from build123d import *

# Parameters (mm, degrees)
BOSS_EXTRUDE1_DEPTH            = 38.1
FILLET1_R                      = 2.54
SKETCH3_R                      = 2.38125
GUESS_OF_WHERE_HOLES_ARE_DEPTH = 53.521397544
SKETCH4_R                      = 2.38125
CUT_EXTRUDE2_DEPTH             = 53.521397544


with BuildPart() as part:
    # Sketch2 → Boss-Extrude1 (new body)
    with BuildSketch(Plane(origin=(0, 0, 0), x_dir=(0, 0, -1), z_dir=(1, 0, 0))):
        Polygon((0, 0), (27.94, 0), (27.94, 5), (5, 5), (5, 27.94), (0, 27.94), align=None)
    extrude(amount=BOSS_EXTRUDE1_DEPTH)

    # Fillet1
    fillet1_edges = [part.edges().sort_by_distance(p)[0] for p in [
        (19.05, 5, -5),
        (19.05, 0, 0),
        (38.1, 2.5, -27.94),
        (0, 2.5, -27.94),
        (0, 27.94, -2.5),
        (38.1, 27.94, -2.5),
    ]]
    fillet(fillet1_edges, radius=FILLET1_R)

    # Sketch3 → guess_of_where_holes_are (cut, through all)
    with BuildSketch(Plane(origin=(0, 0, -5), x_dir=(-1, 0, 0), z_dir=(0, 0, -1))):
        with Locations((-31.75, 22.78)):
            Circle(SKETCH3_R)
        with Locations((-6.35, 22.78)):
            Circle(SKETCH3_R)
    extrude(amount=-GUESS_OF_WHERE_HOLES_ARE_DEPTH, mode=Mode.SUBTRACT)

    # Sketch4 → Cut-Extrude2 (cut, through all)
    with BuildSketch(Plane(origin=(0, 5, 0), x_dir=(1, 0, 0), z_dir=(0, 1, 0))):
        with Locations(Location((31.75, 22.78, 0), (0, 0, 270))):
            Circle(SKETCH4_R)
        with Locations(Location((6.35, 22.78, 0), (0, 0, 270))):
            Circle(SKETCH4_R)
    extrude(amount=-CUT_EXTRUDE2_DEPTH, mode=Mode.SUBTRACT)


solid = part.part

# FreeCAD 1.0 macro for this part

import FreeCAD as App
import Part
import Sketcher
from FreeCAD import Vector
Q = App.Units.Quantity


def edges_at(feature, points):
    """Names of the edges that pass closest to the given points."""
    edges = feature.Shape.Edges
    near = lambda p: min(range(len(edges)), key=lambda i: edges[i].distToShape(Part.Vertex(*p))[0])
    return sorted({f"Edge{near(p) + 1}" for p in points})

doc = App.newDocument("Part")
body = doc.addObject("PartDesign::Body", "Body")

# Sketch on YZ plane
sketch1 = body.newObject("Sketcher::SketchObject", "Sketch")
sketch1.AttachmentSupport = (doc.getObject("YZ_Plane"), [""])
sketch1.MapMode = "FlatFace"
sketch1.addGeometry([
    Part.LineSegment(Vector(0, 0, 0), Vector(0, -27.94, 0)),  # 0
    Part.LineSegment(Vector(0, -27.94, 0), Vector(5, -27.94, 0)),  # 1
    Part.LineSegment(Vector(5, -27.94, 0), Vector(5, -5, 0)),  # 2
    Part.LineSegment(Vector(5, -5, 0), Vector(27.94, -5, 0)),  # 3
    Part.LineSegment(Vector(27.94, -5, 0), Vector(27.94, 0, 0)),  # 4
    Part.LineSegment(Vector(27.94, 0, 0), Vector(0, 0, 0)),  # 5
], False)
sketch1.addConstraint([
    Sketcher.Constraint("Coincident", 0, 2, 1, 1),
    Sketcher.Constraint("Coincident", 1, 2, 2, 1),
    Sketcher.Constraint("Coincident", 2, 2, 3, 1),
    Sketcher.Constraint("Coincident", 3, 2, 4, 1),
    Sketcher.Constraint("Coincident", 4, 2, 5, 1),
    Sketcher.Constraint("Coincident", 5, 2, 0, 1),
    Sketcher.Constraint("Vertical", 0),
    Sketcher.Constraint("Horizontal", 1),
    Sketcher.Constraint("Vertical", 2),
    Sketcher.Constraint("Horizontal", 3),
    Sketcher.Constraint("Vertical", 4),
    Sketcher.Constraint("Horizontal", 5),
    Sketcher.Constraint("Coincident", 5, 2, -1, 1),
    Sketcher.Constraint("Equal", 5, 0),
    Sketcher.Constraint("Equal", 3, 2),
    Sketcher.Constraint("DistanceX", 5, 2, 5, 1, Q("1.1 in")),
    Sketcher.Constraint("DistanceX", 1, 1, 1, 2, 5.0),
])
pad1 = body.newObject("PartDesign::Pad", "Pad")
pad1.Profile = sketch1
pad1.Length = Q("1.5 in")
doc.recompute()

fillet = body.newObject("PartDesign::Fillet", "Fillet")
fillet.Base = (pad1, edges_at(pad1, [
    (19.05, 5, -5),
    (19.05, 0, 0),
    (38.1, 2.5, -27.94),
    (0, 2.5, -27.94),
    (0, 27.94, -2.5),
    (38.1, 27.94, -2.5),
]))
fillet.Radius = Q("0.1 in")

# Sketch on XY plane
sketch2 = body.newObject("Sketcher::SketchObject", "Sketch001")
sketch2.AttachmentSupport = (doc.getObject("XY_Plane"), [""])
sketch2.MapMode = "FlatFace"
sketch2.AttachmentOffset = App.Placement(Vector(0, 0, -5), App.Rotation())
sketch2.addGeometry([
    Part.Circle(Vector(31.75, 22.78, 0), Vector(0, 0, 1), 2.38125),
    Part.Circle(Vector(6.35, 22.78, 0), Vector(0, 0, 1), 2.38125),
], False)
sketch2.addConstraint([
    Sketcher.Constraint("Equal", 0, 1),
    Sketcher.Constraint("Horizontal", 0, 3, 1, 3),
    Sketcher.Constraint("Diameter", 0, Q("0.1875 in")),
    Sketcher.Constraint("DistanceX", 1, 3, 0, 3, Q("1 in")),
    Sketcher.Constraint("DistanceX", -1, 1, 0, 3, Q("1.25 in")),
    Sketcher.Constraint("DistanceY", -1, 1, 0, 3, 22.78),
])
pocket1 = body.newObject("PartDesign::Pocket", "Pocket")
pocket1.Profile = sketch2
pocket1.Type = "ThroughAll"
pocket1.Reversed = True

# Sketch on XZ plane
sketch3 = body.newObject("Sketcher::SketchObject", "Sketch002")
sketch3.AttachmentSupport = (doc.getObject("XZ_Plane"), [""])
sketch3.MapMode = "FlatFace"
sketch3.AttachmentOffset = App.Placement(Vector(0, 0, -5), App.Rotation())
sketch3.addGeometry([
    Part.Circle(Vector(31.75, -22.78, 0), Vector(0, 0, 1), 2.38125),
    Part.Circle(Vector(6.35, -22.78, 0), Vector(0, 0, 1), 2.38125),
], False)
sketch3.addConstraint([
    Sketcher.Constraint("Equal", 0, 1),
    Sketcher.Constraint("Horizontal", 0, 3, 1, 3),
    Sketcher.Constraint("Diameter", 0, Q("0.1875 in")),
    Sketcher.Constraint("DistanceX", 1, 3, 0, 3, Q("1 in")),
    Sketcher.Constraint("DistanceX", -1, 1, 0, 3, Q("1.25 in")),
    Sketcher.Constraint("DistanceY", 0, 3, -1, 1, 22.78),
])
pocket2 = body.newObject("PartDesign::Pocket", "Pocket001")
pocket2.Profile = sketch3
pocket2.Type = "ThroughAll"
pocket2.Reversed = True

doc.recompute()
